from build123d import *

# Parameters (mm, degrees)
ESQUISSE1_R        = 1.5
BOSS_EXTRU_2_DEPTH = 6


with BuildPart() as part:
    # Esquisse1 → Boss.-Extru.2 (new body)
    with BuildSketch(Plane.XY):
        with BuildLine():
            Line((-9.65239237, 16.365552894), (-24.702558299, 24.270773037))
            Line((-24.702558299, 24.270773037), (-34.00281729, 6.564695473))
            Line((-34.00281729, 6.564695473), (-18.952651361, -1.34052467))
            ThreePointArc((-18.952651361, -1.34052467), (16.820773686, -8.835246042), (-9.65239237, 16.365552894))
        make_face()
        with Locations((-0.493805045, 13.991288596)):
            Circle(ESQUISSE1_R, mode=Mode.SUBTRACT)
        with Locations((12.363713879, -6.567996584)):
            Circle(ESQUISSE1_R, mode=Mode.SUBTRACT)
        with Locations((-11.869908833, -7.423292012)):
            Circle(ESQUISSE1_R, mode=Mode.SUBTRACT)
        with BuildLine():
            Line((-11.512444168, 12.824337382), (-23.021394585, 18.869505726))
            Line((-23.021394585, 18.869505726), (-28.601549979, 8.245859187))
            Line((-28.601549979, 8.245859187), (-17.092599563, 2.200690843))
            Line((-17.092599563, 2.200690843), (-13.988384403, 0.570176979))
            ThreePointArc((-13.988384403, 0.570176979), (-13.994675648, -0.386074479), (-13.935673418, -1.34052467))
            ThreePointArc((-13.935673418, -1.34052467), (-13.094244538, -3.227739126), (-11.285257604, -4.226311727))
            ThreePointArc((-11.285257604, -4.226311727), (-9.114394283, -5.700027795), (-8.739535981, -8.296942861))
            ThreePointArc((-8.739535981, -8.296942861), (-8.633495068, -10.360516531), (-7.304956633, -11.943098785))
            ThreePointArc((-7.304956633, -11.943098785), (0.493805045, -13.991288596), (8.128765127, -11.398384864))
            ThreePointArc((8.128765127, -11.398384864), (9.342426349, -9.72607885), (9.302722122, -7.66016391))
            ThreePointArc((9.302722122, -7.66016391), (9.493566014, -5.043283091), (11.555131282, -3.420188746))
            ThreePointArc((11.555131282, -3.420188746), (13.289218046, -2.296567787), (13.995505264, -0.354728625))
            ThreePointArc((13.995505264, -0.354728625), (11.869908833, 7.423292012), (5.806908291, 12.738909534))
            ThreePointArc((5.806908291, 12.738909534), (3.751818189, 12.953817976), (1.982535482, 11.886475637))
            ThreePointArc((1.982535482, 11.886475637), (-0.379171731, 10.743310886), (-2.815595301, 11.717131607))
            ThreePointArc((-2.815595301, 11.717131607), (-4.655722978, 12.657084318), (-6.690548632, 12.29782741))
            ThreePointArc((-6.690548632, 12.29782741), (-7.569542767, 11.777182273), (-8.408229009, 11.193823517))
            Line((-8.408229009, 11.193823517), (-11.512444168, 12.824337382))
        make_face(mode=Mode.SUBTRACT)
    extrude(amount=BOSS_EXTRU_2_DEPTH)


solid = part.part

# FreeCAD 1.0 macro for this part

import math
import FreeCAD as App
import Part
import Sketcher
from FreeCAD import Vector

doc = App.newDocument("Part")
body = doc.addObject("PartDesign::Body", "Body")

# Sketch on XY plane
sketch1 = body.newObject("Sketcher::SketchObject", "Sketch")
sketch1.AttachmentSupport = (doc.getObject("XY_Plane"), [""])
sketch1.MapMode = "FlatFace"
sketch1.addGeometry(Part.LineSegment(Vector(-9.7, 16.4, 0), Vector(-24.7, 24.3, 0)), False)
sketch1.addGeometry(Part.LineSegment(Vector(-24.7, 24.3, 0), Vector(-34, 6.6, 0)), False)
sketch1.addGeometry(Part.LineSegment(Vector(-34, 6.6, 0), Vector(-19, -1.3, 0)), False)
sketch1.addGeometry(Part.ArcOfCircle(Part.Circle(Vector(0, 0, 0), Vector(0, 0, 1), 19), math.radians(-176), math.radians(121)), False)
sketch1.addGeometry(Part.Circle(Vector(-11.9, -7.4, 0), Vector(0, 0, 1), 1.5), False)
sketch1.addGeometry(Part.Circle(Vector(12.4, -6.6, 0), Vector(0, 0, 1), 1.5), False)
sketch1.addGeometry(Part.LineSegment(Vector(-23, 18.9, 0), Vector(-11.5, 12.8, 0)), False)
sketch1.addGeometry(Part.LineSegment(Vector(-11.5, 12.8, 0), Vector(-8.4, 11.2, 0)), False)
sketch1.addGeometry(Part.ArcOfCircle(Part.Circle(Vector(0, 0, 0), Vector(0, 0, 1), 14), math.radians(118.55), math.radians(126.91)), False)
sketch1.addGeometry(Part.ArcOfCircle(Part.Circle(Vector(-5.1, 9.4, 0), Vector(0, 0, 1), 3.2), math.radians(44), math.radians(119)), False)
sketch1.addGeometry(Part.ArcOfCircle(Part.Circle(Vector(-0.5, 14, 0), Vector(0, 0, 1), 3.2), math.radians(-136), math.radians(-40)), False)
sketch1.addGeometry(Part.ArcOfCircle(Part.Circle(Vector(4.5, 9.8, 0), Vector(0, 0, 1), 3.3), math.radians(65), math.radians(140)), False)
sketch1.addGeometry(Part.ArcOfCircle(Part.Circle(Vector(0, 0, 0), Vector(0, 0, 1), 14), math.radians(-1), math.radians(65)), False)
sketch1.addGeometry(Part.ArcOfCircle(Part.Circle(Vector(10.7, -0.3, 0), Vector(0, 0, 1), 3.2), math.radians(-76), math.radians(-1)), False)
sketch1.addGeometry(Part.ArcOfCircle(Part.Circle(Vector(12.4, -6.6, 0), Vector(0, 0, 1), 3.2), math.radians(104), math.radians(200)), False)
sketch1.addGeometry(Part.ArcOfCircle(Part.Circle(Vector(6.2, -8.8, 0), Vector(0, 0, 1), 3.2), math.radians(-55), math.radians(20)), False)
sketch1.addGeometry(Part.ArcOfCircle(Part.Circle(Vector(0, 0, 0), Vector(0, 0, 1), 14), math.radians(-121), math.radians(-55)), False)
sketch1.addGeometry(Part.ArcOfCircle(Part.Circle(Vector(-5.6, -9.2, 0), Vector(0, 0, 1), 3.3), math.radians(164), math.radians(239)), False)
sketch1.addGeometry(Part.ArcOfCircle(Part.Circle(Vector(-11.9, -7.4, 0), Vector(0, 0, 1), 3.3), math.radians(-16), math.radians(80)), False)
sketch1.addGeometry(Part.ArcOfCircle(Part.Circle(Vector(-10.7, -1, 0), Vector(0, 0, 1), 3.2), math.radians(-175), math.radians(-100)), False)
sketch1.addGeometry(Part.ArcOfCircle(Part.Circle(Vector(0, 0, 0), Vector(0, 0, 1), 14), math.radians(177.67), math.radians(185.49)), False)
sketch1.addGeometry(Part.LineSegment(Vector(-14, 0.6, 0), Vector(-17.1, 2.2, 0)), False)
sketch1.addGeometry(Part.LineSegment(Vector(-17.1, 2.2, 0), Vector(-28.6, 8.2, 0)), False)
sketch1.addGeometry(Part.LineSegment(Vector(-28.6, 8.2, 0), Vector(-23, 18.9, 0)), False)
sketch1.addGeometry(Part.Circle(Vector(-0.5, 14, 0), Vector(0, 0, 1), 1.5), False)
sketch1.addConstraint(Sketcher.Constraint("Coincident", 0, 2, 1, 1))
sketch1.addConstraint(Sketcher.Constraint("Coincident", 1, 2, 2, 1))
sketch1.addConstraint(Sketcher.Constraint("Coincident", 2, 2, 3, 1))
sketch1.addConstraint(Sketcher.Constraint("Coincident", 3, 2, 0, 1))
sketch1.addConstraint(Sketcher.Constraint("Coincident", 6, 2, 7, 1))
sketch1.addConstraint(Sketcher.Constraint("Coincident", 7, 2, 8, 2))
sketch1.addConstraint(Sketcher.Constraint("Tangent", 8, 1, 9, 2))
sketch1.addConstraint(Sketcher.Constraint("Tangent", 9, 1, 10, 1))
sketch1.addConstraint(Sketcher.Constraint("Tangent", 10, 2, 11, 2))
sketch1.addConstraint(Sketcher.Constraint("Tangent", 11, 1, 12, 2))
sketch1.addConstraint(Sketcher.Constraint("Tangent", 12, 1, 13, 2))
sketch1.addConstraint(Sketcher.Constraint("Tangent", 13, 1, 14, 1))
sketch1.addConstraint(Sketcher.Constraint("Tangent", 14, 2, 15, 2))
sketch1.addConstraint(Sketcher.Constraint("Tangent", 15, 1, 16, 2))
sketch1.addConstraint(Sketcher.Constraint("Tangent", 16, 1, 17, 2))
sketch1.addConstraint(Sketcher.Constraint("Tangent", 17, 1, 18, 1))
sketch1.addConstraint(Sketcher.Constraint("Tangent", 18, 2, 19, 2))
sketch1.addConstraint(Sketcher.Constraint("Tangent", 19, 1, 20, 2))
sketch1.addConstraint(Sketcher.Constraint("Coincident", 20, 1, 21, 1))
sketch1.addConstraint(Sketcher.Constraint("Coincident", 21, 2, 22, 1))
sketch1.addConstraint(Sketcher.Constraint("Coincident", 22, 2, 23, 1))
sketch1.addConstraint(Sketcher.Constraint("Coincident", 23, 2, 6, 1))
sketch1.addConstraint(Sketcher.Constraint("Coincident", 3, 3, -1, 1))
sketch1.addConstraint(Sketcher.Constraint("Coincident", 8, 3, -1, 1))
sketch1.addConstraint(Sketcher.Constraint("Coincident", 12, 3, -1, 1))
sketch1.addConstraint(Sketcher.Constraint("Coincident", 16, 3, -1, 1))
sketch1.addConstraint(Sketcher.Constraint("Coincident", 20, 3, -1, 1))
sketch1.addConstraint(Sketcher.Constraint("Coincident", 14, 3, 5, 3))
sketch1.addConstraint(Sketcher.Constraint("Coincident", 18, 3, 4, 3))
sketch1.addConstraint(Sketcher.Constraint("Coincident", 24, 3, 10, 3))
sketch1.addConstraint(Sketcher.Constraint("Equal", 4, 5))
sketch1.addConstraint(Sketcher.Constraint("Equal", 9, 10))
sketch1.addConstraint(Sketcher.Constraint("Equal", 10, 11))
sketch1.addConstraint(Sketcher.Constraint("Equal", 8, 12))
sketch1.addConstraint(Sketcher.Constraint("Equal", 11, 13))
sketch1.addConstraint(Sketcher.Constraint("Equal", 13, 14))
sketch1.addConstraint(Sketcher.Constraint("Equal", 14, 15))
sketch1.addConstraint(Sketcher.Constraint("Equal", 12, 16))
sketch1.addConstraint(Sketcher.Constraint("Equal", 15, 17))
sketch1.addConstraint(Sketcher.Constraint("Equal", 17, 18))
sketch1.addConstraint(Sketcher.Constraint("Equal", 18, 19))
sketch1.addConstraint(Sketcher.Constraint("Equal", 16, 20))
sketch1.addConstraint(Sketcher.Constraint("Equal", 5, 24))
sketch1.addConstraint(Sketcher.Constraint("Perpendicular", 0, 1))
sketch1.addConstraint(Sketcher.Constraint("Perpendicular", 1, 2))
sketch1.addConstraint(Sketcher.Constraint("Parallel", 2, 6))
sketch1.addConstraint(Sketcher.Constraint("Parallel", 6, 7))
sketch1.addConstraint(Sketcher.Constraint("Parallel", 7, 21))
sketch1.addConstraint(Sketcher.Constraint("Parallel", 21, 22))
sketch1.addConstraint(Sketcher.Constraint("Perpendicular", 22, 23))
sketch1.addConstraint(Sketcher.Constraint("Horizontal", 2, 2, 19, 1))
sketch1.addConstraint(Sketcher.Constraint("Equal", 0, 2))
sketch1.addConstraint(Sketcher.Constraint("Equal", 7, 21))
sketch1.addConstraint(Sketcher.Constraint("Equal", 6, 22))
sketch1.addConstraint(Sketcher.Constraint("Diameter", 4, 3.0))
sketch1.addConstraint(Sketcher.Constraint("Radius", 3, 19.0))
sketch1.addConstraint(Sketcher.Constraint("Radius", 8, 14.0))
sketch1.addConstraint(Sketcher.Constraint("Radius", 9, 3.25))
sketch1.addConstraint(Sketcher.Constraint("Distance", 0, 17.0))
sketch1.addConstraint(Sketcher.Constraint("Distance", 1, 20.0))
sketch1.addConstraint(Sketcher.Constraint("Distance", 6, 13.0))
sketch1.addConstraint(Sketcher.Constraint("Distance", 23, 12.0))
sketch1.addConstraint(Sketcher.Constraint("DistanceY", 16, 1, -1, 1, 11.943099))
sketch1.addConstraint(Sketcher.Constraint("DistanceX", 21, 2, -1, 1, 17.0926))
sketch1.addConstraint(Sketcher.Constraint("DistanceX", 9, 3, 5, 3, 17.501099))
sketch1.addConstraint(Sketcher.Constraint("DistanceY", 17, 3, 4, 3, 1.747302))
sketch1.addConstraint(Sketcher.Constraint("DistanceY", 9, 3, 0, 2, 14.827798))
sketch1.addConstraint(Sketcher.Constraint("DistanceY", 9, 3, 10, 2, 2.443501))
sketch1.addConstraint(Sketcher.Constraint("DistanceX", 15, 3, 13, 1, 5.313401))
pad1 = body.newObject("PartDesign::Pad", "Pad")
pad1.Profile = sketch1
pad1.Length = 6

doc.recompute()
